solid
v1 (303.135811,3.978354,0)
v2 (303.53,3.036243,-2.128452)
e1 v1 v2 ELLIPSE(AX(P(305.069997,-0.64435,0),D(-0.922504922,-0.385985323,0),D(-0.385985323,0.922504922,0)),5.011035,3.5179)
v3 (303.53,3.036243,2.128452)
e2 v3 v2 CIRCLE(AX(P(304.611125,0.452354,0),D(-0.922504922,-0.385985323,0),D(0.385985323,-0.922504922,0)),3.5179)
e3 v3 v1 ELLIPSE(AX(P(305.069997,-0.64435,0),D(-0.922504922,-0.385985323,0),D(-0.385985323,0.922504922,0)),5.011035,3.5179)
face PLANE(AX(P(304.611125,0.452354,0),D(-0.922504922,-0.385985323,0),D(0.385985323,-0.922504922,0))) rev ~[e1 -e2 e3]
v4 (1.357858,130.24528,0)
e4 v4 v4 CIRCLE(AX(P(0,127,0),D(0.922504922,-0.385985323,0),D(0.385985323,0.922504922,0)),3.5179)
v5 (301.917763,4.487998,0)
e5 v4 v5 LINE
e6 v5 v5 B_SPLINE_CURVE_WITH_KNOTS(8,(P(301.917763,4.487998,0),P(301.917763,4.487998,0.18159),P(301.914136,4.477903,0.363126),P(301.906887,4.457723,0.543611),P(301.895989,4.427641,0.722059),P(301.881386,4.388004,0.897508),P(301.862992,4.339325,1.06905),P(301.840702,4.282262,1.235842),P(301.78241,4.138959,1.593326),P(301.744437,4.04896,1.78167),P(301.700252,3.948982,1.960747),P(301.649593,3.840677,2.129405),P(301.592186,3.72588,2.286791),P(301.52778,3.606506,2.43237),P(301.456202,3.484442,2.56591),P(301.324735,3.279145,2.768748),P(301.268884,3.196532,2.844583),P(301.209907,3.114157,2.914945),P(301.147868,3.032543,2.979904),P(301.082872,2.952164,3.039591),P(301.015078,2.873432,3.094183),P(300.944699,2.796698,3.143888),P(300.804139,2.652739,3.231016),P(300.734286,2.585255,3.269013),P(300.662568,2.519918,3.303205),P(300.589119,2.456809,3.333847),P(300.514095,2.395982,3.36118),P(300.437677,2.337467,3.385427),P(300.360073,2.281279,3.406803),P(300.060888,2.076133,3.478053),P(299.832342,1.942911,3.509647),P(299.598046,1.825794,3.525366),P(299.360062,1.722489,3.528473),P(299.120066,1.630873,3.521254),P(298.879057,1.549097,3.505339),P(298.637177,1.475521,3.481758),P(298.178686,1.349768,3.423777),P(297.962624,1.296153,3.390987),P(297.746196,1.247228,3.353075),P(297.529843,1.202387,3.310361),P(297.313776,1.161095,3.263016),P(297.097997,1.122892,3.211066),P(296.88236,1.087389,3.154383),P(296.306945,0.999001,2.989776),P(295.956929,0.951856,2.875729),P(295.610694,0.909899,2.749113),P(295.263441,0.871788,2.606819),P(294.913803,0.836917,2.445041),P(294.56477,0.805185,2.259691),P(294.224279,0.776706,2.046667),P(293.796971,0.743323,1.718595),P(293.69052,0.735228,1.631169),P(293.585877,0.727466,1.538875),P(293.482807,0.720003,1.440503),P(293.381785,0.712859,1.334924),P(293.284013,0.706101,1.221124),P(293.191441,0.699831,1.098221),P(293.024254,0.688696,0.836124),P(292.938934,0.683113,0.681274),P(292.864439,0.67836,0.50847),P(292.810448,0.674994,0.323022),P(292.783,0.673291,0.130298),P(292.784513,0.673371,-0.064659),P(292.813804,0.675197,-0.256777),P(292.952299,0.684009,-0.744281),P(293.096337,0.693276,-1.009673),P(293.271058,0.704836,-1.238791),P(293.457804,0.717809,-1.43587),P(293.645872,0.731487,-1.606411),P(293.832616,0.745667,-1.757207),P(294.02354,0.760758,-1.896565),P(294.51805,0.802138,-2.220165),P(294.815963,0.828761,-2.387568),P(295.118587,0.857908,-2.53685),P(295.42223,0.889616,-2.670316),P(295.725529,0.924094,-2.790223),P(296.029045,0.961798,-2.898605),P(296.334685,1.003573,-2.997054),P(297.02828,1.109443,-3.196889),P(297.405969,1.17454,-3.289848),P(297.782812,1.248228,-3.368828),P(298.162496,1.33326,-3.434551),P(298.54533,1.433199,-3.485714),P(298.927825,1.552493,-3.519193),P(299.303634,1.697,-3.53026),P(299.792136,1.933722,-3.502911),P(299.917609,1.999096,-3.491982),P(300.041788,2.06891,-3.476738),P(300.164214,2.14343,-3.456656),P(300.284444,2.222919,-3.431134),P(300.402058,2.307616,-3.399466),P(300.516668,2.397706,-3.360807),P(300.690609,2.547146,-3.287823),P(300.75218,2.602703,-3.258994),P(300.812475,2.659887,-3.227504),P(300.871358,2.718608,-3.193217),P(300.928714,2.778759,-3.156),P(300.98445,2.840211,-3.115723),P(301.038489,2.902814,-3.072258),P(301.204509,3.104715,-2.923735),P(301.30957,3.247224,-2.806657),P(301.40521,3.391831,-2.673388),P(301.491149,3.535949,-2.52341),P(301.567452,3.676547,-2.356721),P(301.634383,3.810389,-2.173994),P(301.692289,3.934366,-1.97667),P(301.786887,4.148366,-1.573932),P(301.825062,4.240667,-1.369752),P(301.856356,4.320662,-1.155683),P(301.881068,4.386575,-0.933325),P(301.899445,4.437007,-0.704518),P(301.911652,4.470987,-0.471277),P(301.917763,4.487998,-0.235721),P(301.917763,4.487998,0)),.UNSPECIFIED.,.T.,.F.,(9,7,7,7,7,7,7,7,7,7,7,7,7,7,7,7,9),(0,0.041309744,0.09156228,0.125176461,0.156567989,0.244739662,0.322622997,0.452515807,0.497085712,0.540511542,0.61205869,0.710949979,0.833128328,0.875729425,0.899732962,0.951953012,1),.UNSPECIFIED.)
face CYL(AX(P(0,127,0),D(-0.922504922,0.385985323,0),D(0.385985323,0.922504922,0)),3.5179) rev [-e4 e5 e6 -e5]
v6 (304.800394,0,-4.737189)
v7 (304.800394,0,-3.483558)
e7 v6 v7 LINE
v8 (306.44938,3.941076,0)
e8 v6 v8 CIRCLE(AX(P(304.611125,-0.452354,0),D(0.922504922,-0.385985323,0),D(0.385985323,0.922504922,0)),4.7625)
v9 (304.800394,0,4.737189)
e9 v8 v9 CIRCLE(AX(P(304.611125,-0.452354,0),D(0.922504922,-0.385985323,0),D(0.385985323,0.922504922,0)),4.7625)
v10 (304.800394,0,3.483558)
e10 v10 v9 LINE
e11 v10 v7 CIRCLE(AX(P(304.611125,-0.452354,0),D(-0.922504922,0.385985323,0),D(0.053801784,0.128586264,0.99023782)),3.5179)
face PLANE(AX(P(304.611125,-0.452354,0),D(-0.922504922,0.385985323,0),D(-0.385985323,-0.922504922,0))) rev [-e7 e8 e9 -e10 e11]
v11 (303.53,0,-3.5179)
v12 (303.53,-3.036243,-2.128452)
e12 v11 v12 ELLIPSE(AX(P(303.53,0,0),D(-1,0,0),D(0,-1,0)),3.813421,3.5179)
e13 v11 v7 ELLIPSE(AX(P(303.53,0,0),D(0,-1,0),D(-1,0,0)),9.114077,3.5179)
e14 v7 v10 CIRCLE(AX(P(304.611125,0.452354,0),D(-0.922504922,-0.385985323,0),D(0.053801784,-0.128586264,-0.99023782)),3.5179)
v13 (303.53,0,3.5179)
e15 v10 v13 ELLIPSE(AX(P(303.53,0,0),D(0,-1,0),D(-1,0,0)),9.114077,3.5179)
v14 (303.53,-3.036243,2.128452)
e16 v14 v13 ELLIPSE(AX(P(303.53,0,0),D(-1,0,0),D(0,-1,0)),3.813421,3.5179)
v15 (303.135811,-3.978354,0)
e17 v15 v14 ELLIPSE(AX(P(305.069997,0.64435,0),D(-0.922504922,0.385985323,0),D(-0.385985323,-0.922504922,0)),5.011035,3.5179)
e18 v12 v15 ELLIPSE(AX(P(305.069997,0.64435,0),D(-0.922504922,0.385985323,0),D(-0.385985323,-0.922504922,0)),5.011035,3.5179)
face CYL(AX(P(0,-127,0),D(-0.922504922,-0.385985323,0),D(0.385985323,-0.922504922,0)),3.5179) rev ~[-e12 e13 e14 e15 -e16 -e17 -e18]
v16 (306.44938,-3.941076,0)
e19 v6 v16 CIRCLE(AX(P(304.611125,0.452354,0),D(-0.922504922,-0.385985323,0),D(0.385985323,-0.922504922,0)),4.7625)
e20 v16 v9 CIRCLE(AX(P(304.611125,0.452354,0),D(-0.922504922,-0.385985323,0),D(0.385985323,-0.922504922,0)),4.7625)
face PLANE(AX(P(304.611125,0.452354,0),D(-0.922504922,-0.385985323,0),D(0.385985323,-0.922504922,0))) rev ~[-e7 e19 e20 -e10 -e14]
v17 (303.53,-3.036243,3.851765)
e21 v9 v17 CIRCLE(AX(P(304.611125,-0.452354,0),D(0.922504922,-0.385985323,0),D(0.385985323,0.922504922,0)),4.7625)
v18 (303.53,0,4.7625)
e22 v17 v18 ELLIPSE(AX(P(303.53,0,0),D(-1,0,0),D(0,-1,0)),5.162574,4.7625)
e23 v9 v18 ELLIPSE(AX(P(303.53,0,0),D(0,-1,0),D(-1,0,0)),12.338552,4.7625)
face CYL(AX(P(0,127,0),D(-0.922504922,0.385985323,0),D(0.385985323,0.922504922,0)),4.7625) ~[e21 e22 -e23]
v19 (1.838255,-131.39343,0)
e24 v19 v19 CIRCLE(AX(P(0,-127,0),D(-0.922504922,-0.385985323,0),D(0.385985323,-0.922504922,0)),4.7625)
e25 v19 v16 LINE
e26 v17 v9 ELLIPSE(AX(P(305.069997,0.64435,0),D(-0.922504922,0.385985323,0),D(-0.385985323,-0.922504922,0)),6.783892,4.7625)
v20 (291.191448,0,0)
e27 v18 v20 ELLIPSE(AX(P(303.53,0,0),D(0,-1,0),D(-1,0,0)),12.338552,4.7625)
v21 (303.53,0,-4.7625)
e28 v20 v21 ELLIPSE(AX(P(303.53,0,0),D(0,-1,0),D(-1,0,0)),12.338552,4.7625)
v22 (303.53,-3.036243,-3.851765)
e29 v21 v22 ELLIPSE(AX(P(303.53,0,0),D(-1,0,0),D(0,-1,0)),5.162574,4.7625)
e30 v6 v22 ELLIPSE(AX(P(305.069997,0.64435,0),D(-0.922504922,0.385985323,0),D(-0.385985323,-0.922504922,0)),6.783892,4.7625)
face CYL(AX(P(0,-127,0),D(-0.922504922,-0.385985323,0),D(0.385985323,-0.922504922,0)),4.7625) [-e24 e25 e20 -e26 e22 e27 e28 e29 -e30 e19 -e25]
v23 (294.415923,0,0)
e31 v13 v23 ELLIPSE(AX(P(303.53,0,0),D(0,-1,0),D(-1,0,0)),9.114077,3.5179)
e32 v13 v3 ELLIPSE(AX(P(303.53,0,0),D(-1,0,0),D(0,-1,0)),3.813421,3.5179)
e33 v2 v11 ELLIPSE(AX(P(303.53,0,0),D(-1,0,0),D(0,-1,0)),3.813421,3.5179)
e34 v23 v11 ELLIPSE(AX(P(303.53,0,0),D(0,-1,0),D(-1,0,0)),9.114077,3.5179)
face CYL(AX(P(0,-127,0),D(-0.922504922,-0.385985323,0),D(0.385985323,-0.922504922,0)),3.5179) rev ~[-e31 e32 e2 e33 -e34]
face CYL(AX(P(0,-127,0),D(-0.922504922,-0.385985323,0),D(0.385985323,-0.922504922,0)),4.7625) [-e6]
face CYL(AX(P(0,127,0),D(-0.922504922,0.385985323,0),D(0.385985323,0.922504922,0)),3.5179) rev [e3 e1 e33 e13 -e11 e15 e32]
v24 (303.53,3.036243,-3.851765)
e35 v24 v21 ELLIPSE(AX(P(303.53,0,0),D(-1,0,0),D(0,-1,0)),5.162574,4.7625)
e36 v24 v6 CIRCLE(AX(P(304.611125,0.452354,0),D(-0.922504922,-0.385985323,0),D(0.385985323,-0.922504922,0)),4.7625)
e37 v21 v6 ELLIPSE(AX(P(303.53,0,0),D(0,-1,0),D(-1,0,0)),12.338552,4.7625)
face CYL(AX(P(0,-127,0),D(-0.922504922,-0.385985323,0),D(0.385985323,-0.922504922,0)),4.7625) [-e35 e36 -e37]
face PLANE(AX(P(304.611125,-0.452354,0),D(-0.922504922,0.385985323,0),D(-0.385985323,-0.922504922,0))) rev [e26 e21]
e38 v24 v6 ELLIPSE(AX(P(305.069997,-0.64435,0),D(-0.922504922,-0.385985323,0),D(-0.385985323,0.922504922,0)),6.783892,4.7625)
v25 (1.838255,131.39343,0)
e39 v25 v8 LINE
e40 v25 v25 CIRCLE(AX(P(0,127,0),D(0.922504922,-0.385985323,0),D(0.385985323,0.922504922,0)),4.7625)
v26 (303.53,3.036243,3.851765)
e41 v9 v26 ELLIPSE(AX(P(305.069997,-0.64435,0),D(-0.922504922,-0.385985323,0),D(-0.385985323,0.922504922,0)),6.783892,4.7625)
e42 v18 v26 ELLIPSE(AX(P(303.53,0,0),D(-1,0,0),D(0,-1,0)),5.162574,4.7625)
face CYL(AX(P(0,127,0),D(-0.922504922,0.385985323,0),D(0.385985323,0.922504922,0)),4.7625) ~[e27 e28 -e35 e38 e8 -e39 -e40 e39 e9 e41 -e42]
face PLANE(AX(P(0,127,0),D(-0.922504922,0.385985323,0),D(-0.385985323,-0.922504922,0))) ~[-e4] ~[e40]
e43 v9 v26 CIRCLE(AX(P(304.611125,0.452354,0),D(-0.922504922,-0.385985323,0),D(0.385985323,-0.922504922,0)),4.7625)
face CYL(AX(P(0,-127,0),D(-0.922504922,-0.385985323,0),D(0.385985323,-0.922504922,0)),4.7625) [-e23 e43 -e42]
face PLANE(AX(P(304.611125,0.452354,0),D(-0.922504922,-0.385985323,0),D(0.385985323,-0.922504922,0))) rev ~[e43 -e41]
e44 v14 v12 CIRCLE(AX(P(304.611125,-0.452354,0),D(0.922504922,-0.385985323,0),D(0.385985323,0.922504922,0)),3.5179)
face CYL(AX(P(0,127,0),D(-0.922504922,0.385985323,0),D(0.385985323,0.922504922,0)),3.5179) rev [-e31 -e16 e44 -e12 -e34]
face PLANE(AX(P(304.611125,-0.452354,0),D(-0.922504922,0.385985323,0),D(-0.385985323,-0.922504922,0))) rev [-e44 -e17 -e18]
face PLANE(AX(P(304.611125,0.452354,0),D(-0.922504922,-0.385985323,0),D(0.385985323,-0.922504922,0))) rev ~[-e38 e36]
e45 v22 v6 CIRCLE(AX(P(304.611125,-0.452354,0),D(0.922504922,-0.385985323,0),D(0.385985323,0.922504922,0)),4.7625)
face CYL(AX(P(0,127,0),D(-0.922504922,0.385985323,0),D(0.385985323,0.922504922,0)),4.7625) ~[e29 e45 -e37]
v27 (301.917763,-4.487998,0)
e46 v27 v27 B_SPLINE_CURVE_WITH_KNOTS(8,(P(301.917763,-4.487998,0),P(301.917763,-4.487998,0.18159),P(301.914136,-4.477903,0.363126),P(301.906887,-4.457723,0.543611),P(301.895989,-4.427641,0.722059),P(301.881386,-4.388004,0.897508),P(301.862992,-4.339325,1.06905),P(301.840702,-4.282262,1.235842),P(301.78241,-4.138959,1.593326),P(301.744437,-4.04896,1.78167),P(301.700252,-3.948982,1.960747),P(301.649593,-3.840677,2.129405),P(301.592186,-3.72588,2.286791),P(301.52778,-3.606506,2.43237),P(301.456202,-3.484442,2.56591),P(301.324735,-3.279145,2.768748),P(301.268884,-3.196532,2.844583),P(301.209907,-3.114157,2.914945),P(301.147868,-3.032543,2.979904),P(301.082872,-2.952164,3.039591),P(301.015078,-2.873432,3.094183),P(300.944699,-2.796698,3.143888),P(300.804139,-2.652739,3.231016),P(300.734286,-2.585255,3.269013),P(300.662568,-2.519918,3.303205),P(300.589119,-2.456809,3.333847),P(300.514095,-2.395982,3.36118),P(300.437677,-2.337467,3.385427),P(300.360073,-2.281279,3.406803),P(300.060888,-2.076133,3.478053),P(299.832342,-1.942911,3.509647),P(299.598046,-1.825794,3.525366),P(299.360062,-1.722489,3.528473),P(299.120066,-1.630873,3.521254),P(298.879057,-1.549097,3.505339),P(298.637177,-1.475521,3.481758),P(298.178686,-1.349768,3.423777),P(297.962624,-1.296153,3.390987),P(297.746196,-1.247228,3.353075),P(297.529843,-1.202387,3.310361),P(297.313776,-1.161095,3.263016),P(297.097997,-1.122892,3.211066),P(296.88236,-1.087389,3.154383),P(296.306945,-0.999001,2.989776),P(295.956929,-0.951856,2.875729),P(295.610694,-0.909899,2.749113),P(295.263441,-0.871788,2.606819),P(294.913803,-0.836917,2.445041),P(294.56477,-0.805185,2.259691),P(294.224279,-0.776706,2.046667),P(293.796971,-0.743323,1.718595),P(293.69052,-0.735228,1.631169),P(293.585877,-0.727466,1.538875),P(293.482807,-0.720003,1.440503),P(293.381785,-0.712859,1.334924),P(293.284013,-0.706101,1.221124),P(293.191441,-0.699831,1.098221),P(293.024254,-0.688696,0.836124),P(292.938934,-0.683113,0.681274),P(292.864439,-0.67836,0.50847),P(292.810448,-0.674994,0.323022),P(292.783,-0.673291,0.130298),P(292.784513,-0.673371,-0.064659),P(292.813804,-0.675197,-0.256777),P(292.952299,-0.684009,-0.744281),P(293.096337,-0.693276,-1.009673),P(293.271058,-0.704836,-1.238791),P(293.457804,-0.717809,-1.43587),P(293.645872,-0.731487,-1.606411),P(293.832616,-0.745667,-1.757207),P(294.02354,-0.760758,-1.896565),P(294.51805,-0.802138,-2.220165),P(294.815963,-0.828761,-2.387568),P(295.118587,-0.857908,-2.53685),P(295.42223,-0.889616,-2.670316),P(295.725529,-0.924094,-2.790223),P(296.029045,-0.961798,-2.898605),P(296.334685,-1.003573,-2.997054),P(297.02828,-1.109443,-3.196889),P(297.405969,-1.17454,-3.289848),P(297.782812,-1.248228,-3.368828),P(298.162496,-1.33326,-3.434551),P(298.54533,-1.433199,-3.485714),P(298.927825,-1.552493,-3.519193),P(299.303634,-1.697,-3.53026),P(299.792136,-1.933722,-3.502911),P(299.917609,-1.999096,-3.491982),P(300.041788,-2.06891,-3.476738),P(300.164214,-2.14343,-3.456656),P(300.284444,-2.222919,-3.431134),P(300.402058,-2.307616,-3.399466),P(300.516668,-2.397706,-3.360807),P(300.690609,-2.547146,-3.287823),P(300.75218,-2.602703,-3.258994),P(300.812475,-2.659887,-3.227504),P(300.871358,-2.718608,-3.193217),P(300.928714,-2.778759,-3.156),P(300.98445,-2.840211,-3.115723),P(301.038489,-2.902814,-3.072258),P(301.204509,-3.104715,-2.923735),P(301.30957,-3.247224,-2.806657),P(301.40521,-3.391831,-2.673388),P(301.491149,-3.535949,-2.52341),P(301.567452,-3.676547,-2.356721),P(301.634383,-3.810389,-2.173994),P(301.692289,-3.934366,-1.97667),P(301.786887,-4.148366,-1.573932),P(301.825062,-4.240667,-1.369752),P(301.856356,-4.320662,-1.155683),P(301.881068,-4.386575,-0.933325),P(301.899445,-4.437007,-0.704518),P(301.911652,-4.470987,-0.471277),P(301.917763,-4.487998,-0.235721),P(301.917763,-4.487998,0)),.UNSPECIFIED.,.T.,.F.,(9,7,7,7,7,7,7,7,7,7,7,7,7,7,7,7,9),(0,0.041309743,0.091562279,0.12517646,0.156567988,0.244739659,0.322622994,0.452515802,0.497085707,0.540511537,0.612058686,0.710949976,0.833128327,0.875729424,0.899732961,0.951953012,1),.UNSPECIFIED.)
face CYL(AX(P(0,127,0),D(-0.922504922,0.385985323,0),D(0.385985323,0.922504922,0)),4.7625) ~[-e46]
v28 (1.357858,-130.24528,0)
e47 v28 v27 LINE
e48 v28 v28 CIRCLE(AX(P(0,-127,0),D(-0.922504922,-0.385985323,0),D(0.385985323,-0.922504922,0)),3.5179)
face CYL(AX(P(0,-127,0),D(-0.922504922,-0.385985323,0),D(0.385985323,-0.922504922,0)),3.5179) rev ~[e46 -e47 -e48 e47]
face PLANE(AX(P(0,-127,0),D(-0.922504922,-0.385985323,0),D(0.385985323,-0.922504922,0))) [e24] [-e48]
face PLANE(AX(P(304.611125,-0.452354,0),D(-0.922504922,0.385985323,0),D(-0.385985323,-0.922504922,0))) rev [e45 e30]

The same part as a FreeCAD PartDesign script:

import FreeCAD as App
import Part
import Sketcher
from FreeCAD import Vector
Q = App.Units.Quantity

doc = App.newDocument("Part")
body = doc.addObject("PartDesign::Body", "Body")

# Sketch on an angled plane
sketch1 = body.newObject("Sketcher::SketchObject", "Sketch")
sketch1.Placement = App.Placement(Vector(-45.221317, -18.921053, 0), App.Rotation(Vector(0.385985323, -0.922504922, 0), Vector(0, 0, 1.000000001), Vector(-0.922504922, -0.385985323, 0), "ZXY"))
sketch1.addGeometry(Part.Circle(Vector(117.158125, 0, 0), Vector(0, 0, 1), 4.7625), False)
sketch1.addGeometry(Part.Circle(Vector(117.158125, 0, 0), Vector(0, 0, 1), 3.5179), False)
sketch1.addConstraint(Sketcher.Constraint("Coincident", 1, 3, 0, 3))
sketch1.addConstraint(Sketcher.Constraint("PointOnObject", 0, 3, -1))
sketch1.addConstraint(Sketcher.Constraint("Diameter", 0, Q("0.375 in")))
sketch1.addConstraint(Sketcher.Constraint("Diameter", 1, Q("0.277 in")))
sketch1.addConstraint(Sketcher.Constraint("DistanceX", -1, 1, 0, 3, Q("117.158125 mm")))
pad1 = body.newObject("PartDesign::Pad", "Pad")
pad1.Profile = sketch1
pad1.Length = Q("13 in")
pad1.Reversed = True
body2 = doc.addObject("PartDesign::Body", "Body001")
doc.recompute()

body2.BaseFeature = body
doc.recompute()

mirroring = doc.addObject("Part::Mirroring", "Mirroring")
mirroring.Source = body
mirroring.Base = Vector(0, 0, 0)
mirroring.Normal = Vector(0, -1, 0)
body3 = doc.addObject("PartDesign::Body", "Body002")
body3.BaseFeature = mirroring
boolean = body2.newObject("PartDesign::Boolean", "Boolean")
boolean.Type = "Fuse"
boolean.addObjects([body3])
doc.recompute()
mirroring.Visibility = False

doc.recompute()
